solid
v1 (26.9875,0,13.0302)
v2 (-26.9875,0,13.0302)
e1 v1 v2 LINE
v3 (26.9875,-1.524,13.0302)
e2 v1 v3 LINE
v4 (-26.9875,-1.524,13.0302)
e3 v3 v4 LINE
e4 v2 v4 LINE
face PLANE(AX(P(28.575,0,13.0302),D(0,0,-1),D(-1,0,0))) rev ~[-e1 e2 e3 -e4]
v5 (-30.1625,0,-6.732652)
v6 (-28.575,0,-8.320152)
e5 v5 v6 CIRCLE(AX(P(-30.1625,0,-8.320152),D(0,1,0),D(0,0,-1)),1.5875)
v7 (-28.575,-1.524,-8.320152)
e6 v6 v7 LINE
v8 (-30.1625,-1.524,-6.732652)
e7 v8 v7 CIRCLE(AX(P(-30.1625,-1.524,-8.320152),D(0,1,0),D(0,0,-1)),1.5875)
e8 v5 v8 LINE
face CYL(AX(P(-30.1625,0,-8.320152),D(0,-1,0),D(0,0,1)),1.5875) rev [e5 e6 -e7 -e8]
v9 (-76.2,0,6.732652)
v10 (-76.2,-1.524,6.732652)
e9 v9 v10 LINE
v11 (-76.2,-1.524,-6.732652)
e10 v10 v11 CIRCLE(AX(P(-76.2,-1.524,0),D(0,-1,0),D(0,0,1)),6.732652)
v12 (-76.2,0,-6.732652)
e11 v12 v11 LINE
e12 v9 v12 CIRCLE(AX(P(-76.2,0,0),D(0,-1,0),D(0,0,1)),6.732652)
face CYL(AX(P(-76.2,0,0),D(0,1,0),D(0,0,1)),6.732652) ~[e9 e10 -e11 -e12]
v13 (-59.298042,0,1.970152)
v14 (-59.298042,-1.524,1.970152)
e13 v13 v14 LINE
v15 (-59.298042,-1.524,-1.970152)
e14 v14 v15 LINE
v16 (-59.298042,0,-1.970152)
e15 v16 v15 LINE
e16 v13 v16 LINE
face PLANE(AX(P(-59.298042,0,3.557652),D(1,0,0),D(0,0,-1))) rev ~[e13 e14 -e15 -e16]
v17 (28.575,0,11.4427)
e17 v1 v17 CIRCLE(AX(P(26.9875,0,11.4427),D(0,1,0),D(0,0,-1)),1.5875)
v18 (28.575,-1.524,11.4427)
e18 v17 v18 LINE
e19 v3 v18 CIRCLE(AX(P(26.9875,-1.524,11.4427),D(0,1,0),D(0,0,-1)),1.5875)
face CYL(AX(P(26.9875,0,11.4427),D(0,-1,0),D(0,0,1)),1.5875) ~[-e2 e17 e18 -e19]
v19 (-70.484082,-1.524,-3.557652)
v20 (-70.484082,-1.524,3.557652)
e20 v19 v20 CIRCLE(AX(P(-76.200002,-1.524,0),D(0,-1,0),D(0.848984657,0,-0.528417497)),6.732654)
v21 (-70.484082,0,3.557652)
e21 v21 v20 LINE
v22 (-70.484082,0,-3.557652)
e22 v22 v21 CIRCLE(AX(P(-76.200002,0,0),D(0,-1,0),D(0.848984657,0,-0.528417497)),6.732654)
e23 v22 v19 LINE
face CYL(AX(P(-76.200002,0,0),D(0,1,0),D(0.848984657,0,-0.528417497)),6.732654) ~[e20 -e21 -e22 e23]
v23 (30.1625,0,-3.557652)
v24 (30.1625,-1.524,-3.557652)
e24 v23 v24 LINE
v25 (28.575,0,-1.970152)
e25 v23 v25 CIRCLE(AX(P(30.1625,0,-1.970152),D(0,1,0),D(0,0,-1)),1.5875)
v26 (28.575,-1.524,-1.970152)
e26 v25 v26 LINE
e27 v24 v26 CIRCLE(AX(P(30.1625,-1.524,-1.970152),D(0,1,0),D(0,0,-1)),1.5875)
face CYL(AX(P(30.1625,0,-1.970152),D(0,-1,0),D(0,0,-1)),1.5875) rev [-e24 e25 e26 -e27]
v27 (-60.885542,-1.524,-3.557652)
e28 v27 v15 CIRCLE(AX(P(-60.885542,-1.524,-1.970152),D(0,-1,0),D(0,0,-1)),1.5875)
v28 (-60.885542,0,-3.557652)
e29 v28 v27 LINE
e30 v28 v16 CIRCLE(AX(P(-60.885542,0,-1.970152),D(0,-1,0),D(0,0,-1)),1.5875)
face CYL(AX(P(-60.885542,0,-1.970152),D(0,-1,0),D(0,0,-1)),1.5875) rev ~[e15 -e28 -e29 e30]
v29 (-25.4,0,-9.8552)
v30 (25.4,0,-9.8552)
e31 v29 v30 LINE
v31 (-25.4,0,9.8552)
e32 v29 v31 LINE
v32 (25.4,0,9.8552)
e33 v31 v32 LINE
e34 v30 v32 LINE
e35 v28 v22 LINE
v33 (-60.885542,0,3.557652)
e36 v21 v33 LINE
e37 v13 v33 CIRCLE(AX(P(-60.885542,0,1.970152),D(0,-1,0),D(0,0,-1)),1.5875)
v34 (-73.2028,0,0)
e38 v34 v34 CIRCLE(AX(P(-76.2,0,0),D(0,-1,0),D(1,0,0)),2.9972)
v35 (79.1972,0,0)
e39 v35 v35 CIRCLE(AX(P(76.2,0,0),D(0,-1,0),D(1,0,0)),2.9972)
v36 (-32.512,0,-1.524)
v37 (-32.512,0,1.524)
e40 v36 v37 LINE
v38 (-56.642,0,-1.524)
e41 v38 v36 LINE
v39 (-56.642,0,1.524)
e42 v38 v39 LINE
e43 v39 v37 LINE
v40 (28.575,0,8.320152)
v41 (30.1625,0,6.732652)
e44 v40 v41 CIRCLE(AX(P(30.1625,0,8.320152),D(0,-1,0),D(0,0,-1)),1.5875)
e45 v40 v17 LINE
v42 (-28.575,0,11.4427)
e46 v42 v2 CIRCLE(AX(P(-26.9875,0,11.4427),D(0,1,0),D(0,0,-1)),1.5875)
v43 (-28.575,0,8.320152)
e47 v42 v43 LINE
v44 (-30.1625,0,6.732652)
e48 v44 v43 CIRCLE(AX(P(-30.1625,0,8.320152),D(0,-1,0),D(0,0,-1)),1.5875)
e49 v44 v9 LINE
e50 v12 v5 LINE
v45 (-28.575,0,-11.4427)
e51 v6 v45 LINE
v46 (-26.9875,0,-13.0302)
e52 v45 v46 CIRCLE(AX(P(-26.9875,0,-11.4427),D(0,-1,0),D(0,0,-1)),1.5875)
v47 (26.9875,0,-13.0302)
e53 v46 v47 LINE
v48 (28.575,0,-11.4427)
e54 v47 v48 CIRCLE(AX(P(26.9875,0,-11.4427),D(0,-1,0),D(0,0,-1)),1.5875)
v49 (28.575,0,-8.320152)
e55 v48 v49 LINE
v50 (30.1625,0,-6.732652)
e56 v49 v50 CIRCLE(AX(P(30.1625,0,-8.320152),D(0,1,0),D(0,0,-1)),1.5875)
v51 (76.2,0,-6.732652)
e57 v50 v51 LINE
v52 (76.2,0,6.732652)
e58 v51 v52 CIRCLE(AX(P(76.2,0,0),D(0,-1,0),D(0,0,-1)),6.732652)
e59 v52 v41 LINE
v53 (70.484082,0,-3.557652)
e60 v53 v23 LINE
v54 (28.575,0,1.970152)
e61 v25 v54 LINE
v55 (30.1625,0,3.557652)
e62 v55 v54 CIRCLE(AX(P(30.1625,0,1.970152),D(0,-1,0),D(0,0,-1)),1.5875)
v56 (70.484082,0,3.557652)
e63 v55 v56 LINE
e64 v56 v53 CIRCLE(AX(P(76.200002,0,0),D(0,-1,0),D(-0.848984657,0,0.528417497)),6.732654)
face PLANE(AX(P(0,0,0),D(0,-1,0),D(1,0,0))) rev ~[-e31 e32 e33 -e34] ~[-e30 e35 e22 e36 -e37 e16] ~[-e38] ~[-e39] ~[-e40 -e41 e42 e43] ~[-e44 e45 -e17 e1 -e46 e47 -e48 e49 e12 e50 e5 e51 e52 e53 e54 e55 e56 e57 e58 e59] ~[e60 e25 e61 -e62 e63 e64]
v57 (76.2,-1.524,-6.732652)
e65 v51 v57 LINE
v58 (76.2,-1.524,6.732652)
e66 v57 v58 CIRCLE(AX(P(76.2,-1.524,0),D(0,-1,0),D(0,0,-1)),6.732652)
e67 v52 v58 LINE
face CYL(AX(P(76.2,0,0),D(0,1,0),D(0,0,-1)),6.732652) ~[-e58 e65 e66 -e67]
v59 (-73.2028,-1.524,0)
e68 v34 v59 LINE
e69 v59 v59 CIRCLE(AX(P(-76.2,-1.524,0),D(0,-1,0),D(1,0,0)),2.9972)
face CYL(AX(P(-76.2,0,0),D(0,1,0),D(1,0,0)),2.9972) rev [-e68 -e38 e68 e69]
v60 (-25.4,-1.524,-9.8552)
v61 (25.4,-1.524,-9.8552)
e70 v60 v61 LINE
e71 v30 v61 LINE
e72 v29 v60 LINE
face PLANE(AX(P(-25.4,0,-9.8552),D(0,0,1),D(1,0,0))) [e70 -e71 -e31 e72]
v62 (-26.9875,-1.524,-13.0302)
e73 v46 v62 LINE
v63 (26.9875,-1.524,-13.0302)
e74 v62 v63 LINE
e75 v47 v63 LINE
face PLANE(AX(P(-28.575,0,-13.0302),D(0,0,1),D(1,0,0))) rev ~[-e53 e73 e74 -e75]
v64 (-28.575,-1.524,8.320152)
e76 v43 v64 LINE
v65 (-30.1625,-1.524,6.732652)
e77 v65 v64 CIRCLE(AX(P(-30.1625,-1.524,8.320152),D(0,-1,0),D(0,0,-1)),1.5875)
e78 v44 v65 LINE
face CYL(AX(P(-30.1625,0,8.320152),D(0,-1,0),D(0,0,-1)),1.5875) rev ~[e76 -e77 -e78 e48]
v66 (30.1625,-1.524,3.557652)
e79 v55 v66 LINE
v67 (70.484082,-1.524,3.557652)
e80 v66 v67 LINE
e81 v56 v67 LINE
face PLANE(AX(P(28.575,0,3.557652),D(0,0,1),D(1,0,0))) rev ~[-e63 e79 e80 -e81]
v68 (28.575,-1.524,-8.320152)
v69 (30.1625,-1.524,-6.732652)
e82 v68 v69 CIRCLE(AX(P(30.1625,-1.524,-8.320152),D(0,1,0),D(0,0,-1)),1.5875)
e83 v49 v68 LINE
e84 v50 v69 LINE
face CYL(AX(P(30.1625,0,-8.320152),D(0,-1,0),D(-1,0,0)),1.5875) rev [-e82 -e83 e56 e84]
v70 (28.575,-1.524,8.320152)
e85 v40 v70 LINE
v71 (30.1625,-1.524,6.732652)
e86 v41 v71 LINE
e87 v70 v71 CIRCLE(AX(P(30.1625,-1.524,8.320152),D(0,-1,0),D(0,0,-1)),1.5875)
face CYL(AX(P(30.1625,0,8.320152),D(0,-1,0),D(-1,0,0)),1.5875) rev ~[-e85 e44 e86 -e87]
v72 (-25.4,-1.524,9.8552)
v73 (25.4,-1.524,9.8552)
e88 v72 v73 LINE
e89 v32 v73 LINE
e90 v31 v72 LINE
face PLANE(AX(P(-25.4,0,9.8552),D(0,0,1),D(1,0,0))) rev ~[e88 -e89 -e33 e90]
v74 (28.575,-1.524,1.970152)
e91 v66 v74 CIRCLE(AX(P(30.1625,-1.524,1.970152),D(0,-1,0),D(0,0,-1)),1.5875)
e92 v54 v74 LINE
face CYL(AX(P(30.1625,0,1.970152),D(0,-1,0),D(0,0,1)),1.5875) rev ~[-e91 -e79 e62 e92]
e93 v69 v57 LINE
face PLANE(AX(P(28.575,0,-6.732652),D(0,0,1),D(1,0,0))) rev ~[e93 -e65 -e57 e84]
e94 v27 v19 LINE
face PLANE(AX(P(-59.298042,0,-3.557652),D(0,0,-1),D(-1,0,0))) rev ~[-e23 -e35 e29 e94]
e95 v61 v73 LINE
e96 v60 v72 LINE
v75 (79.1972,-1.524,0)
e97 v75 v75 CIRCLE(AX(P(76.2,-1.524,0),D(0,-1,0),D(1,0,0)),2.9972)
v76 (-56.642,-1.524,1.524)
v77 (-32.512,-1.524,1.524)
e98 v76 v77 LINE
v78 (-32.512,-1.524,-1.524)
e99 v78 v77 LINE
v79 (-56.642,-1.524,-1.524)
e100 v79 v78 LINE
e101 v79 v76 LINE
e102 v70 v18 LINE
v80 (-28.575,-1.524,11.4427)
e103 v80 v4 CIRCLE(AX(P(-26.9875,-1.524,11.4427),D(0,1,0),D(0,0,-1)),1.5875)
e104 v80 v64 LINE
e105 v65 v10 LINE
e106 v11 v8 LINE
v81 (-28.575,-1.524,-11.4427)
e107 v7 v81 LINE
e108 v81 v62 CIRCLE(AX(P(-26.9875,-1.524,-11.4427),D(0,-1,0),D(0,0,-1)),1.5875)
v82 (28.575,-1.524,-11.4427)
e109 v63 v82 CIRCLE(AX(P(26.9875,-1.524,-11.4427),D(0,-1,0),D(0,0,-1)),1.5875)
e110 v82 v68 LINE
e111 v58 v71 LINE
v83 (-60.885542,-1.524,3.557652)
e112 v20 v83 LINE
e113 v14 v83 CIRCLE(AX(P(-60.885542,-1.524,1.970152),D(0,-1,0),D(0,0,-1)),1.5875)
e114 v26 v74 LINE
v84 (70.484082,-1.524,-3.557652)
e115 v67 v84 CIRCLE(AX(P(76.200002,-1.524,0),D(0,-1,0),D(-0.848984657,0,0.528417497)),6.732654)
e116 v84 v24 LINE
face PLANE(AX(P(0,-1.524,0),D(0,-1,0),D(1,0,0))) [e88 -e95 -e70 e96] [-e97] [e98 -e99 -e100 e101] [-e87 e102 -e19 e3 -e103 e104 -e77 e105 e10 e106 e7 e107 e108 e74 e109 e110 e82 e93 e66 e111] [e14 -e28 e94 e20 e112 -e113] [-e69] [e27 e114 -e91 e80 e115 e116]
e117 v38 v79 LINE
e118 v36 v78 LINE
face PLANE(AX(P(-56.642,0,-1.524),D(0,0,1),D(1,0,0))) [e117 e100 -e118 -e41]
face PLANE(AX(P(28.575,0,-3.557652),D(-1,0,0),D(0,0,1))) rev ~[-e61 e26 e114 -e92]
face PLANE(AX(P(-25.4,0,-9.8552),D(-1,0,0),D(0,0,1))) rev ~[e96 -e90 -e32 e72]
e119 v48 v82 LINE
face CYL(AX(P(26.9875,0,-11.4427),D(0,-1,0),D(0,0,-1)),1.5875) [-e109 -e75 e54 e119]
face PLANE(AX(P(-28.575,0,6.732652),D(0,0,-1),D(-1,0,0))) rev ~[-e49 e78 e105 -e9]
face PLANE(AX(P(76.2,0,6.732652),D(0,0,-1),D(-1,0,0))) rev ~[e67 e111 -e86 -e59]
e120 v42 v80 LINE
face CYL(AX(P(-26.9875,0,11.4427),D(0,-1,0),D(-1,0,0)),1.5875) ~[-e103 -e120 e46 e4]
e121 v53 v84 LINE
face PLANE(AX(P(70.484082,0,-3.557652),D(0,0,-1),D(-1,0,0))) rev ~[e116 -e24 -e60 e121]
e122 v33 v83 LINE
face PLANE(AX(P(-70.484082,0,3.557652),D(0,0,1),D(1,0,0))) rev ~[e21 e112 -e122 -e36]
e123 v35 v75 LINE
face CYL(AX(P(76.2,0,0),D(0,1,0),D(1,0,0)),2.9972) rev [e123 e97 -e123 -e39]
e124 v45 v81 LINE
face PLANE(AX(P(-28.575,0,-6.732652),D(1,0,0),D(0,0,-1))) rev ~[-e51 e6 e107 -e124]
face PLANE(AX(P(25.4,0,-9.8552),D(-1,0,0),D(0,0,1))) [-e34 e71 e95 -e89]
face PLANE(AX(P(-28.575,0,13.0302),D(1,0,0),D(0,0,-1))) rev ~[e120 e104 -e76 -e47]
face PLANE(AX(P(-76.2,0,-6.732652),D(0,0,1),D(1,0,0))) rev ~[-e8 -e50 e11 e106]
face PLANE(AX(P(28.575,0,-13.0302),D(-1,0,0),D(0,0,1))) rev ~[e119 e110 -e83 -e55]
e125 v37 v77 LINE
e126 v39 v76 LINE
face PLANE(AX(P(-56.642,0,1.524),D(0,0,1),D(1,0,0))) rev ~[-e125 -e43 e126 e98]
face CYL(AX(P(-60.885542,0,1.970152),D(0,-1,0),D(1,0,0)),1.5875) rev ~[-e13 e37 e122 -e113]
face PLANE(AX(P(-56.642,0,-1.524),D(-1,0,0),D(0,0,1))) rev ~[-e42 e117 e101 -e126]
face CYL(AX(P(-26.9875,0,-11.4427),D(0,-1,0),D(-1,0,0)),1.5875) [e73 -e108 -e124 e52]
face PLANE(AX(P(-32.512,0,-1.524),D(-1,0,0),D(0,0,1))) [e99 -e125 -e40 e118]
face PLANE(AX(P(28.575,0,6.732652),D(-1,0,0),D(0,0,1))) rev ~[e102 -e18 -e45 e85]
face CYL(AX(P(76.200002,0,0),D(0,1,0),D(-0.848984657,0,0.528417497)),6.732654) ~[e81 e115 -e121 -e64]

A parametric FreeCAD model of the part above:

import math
import FreeCAD as App
import Part
import Sketcher

V = App.Vector
Q = App.Units.Quantity


def edges_at(feature, points):
    """Names of the edges that pass closest to the given points."""
    edges = feature.Shape.Edges
    near = lambda p: min(range(len(edges)), key=lambda i: edges[i].distToShape(Part.Vertex(*p))[0])
    return sorted({f"Edge{near(p) + 1}" for p in points})

doc = App.newDocument("Part")
body = doc.addObject("PartDesign::Body", "Body")

sketch1 = body.newObject("Sketcher::SketchObject", "Sketch")
sketch1.AttachmentSupport = (doc.getObject("XZ_Plane"), [""])
sketch1.MapMode = "FlatFace"
sketch1.addGeometry([
    Part.ArcOfCircle(Part.Circle(V(-76.2, 0, 0), V(0, 0, 1), 6.7), math.radians(90), math.radians(270)),
    Part.LineSegment(V(-76.2, -6.7, 0), V(-28.6, -6.7, 0)),
    Part.LineSegment(V(-28.6, -6.7, 0), V(-28.6, -13, 0)),
    Part.LineSegment(V(-28.6, -13, 0), V(28.6, -13, 0)),
    Part.LineSegment(V(28.6, -13, 0), V(28.6, -6.7, 0)),
    Part.LineSegment(V(28.6, -6.7, 0), V(76.2, -6.7, 0)),
    Part.ArcOfCircle(Part.Circle(V(76.2, 0, 0), V(0, 0, 1), 6.7), math.radians(-90), math.radians(90)),
    Part.LineSegment(V(76.2, 6.7, 0), V(28.6, 6.7, 0)),
    Part.LineSegment(V(28.6, 6.7, 0), V(28.6, 13, 0)),
    Part.LineSegment(V(28.6, 13, 0), V(-28.6, 13, 0)),
    Part.LineSegment(V(-28.6, 13, 0), V(-28.6, 6.7, 0)),
    Part.LineSegment(V(-28.6, 6.7, 0), V(-76.2, 6.7, 0)),
    Part.LineSegment(V(70.5, -3.6, 0), V(28.6, -3.6, 0)),
    Part.LineSegment(V(28.6, -3.6, 0), V(28.6, 3.6, 0)),
    Part.LineSegment(V(28.6, 3.6, 0), V(70.5, 3.6, 0)),
    Part.ArcOfCircle(Part.Circle(V(76.2, 0, 0), V(0, 0, 1), 6.7), math.radians(148), math.radians(212)),
    Part.Circle(V(-76.2, 0, 0), V(0, 0, 1), 3),
    Part.LineSegment(V(-59.3, -3.6, 0), V(-70.5, -3.6, 0)),
    Part.ArcOfCircle(Part.Circle(V(-76.2, 0, 0), V(0, 0, 1), 6.7), math.radians(-32), math.radians(32)),
    Part.LineSegment(V(-70.5, 3.6, 0), V(-59.3, 3.6, 0)),
    Part.LineSegment(V(-59.3, 3.6, 0), V(-59.3, -3.6, 0)),
    Part.LineSegment(V(-32.5, -1.5, 0), V(-56.6, -1.5, 0)),
    Part.LineSegment(V(-56.6, -1.5, 0), V(-56.6, 1.5, 0)),
    Part.LineSegment(V(-56.6, 1.5, 0), V(-32.5, 1.5, 0)),
    Part.LineSegment(V(-32.5, 1.5, 0), V(-32.5, -1.5, 0)),
    Part.LineSegment(V(25.4, -9.9, 0), V(-25.4, -9.9, 0)),
    Part.LineSegment(V(-25.4, -9.9, 0), V(-25.4, 9.9, 0)),
    Part.LineSegment(V(-25.4, 9.9, 0), V(25.4, 9.9, 0)),
    Part.LineSegment(V(25.4, 9.9, 0), V(25.4, -9.9, 0)),
    Part.Circle(V(76.2, 0, 0), V(0, 0, 1), 3),
], False)
sketch1.addConstraint([
    Sketcher.Constraint("Tangent", 0, 2, 1, 1),
    Sketcher.Constraint("Coincident", 1, 2, 2, 1),
    Sketcher.Constraint("Coincident", 2, 2, 3, 1),
    Sketcher.Constraint("Coincident", 3, 2, 4, 1),
    Sketcher.Constraint("Coincident", 4, 2, 5, 1),
    Sketcher.Constraint("Tangent", 5, 2, 6, 1),
    Sketcher.Constraint("Tangent", 6, 2, 7, 1),
    Sketcher.Constraint("Coincident", 7, 2, 8, 1),
    Sketcher.Constraint("Coincident", 8, 2, 9, 1),
    Sketcher.Constraint("Coincident", 9, 2, 10, 1),
    Sketcher.Constraint("Coincident", 10, 2, 11, 1),
    Sketcher.Constraint("Tangent", 11, 2, 0, 1),
    Sketcher.Constraint("Coincident", 12, 2, 13, 1),
    Sketcher.Constraint("Coincident", 13, 2, 14, 1),
    Sketcher.Constraint("Coincident", 14, 2, 15, 1),
    Sketcher.Constraint("Coincident", 15, 2, 12, 1),
    Sketcher.Constraint("Coincident", 17, 2, 18, 1),
    Sketcher.Constraint("Coincident", 18, 2, 19, 1),
    Sketcher.Constraint("Coincident", 19, 2, 20, 1),
    Sketcher.Constraint("Coincident", 20, 2, 17, 1),
    Sketcher.Constraint("Coincident", 21, 2, 22, 1),
    Sketcher.Constraint("Coincident", 22, 2, 23, 1),
    Sketcher.Constraint("Coincident", 23, 2, 24, 1),
    Sketcher.Constraint("Coincident", 24, 2, 21, 1),
    Sketcher.Constraint("Coincident", 25, 2, 26, 1),
    Sketcher.Constraint("Coincident", 26, 2, 27, 1),
    Sketcher.Constraint("Coincident", 27, 2, 28, 1),
    Sketcher.Constraint("Coincident", 28, 2, 25, 1),
    Sketcher.Constraint("Horizontal", 1),
    Sketcher.Constraint("Vertical", 2),
    Sketcher.Constraint("Horizontal", 3),
    Sketcher.Constraint("Vertical", 4),
    Sketcher.Constraint("Horizontal", 5),
    Sketcher.Constraint("Horizontal", 7),
    Sketcher.Constraint("Vertical", 8),
    Sketcher.Constraint("Horizontal", 9),
    Sketcher.Constraint("Vertical", 10),
    Sketcher.Constraint("Horizontal", 11),
    Sketcher.Constraint("Horizontal", 12),
    Sketcher.Constraint("Vertical", 13),
    Sketcher.Constraint("Horizontal", 14),
    Sketcher.Constraint("Horizontal", 17),
    Sketcher.Constraint("Horizontal", 19),
    Sketcher.Constraint("Vertical", 20),
    Sketcher.Constraint("Horizontal", 21),
    Sketcher.Constraint("Vertical", 22),
    Sketcher.Constraint("Horizontal", 23),
    Sketcher.Constraint("Vertical", 24),
    Sketcher.Constraint("Horizontal", 25),
    Sketcher.Constraint("Vertical", 26),
    Sketcher.Constraint("Horizontal", 27),
    Sketcher.Constraint("Vertical", 28),
    Sketcher.Constraint("Coincident", 15, 3, 6, 3),
    Sketcher.Constraint("Coincident", 16, 3, 0, 3),
    Sketcher.Constraint("Coincident", 18, 3, 0, 3),
    Sketcher.Constraint("Coincident", 29, 3, 6, 3),
    Sketcher.Constraint("Equal", 0, 6),
    Sketcher.Constraint("Equal", 6, 15),
    Sketcher.Constraint("Equal", 15, 18),
    Sketcher.Constraint("Equal", 16, 29),
    Sketcher.Constraint("Symmetric", 0, 3, 6, 3, -1, 1),
    Sketcher.Constraint("Symmetric", 2, 2, 8, 2, -1, 1),
    Sketcher.Constraint("Symmetric", 25, 2, 27, 2, -1, 1),
    Sketcher.Constraint("Symmetric", 1, 2, 4, 2, -2),
    Sketcher.Constraint("Horizontal", 15, 2, 17, 2),
    Sketcher.Constraint("Horizontal", 14, 2, 18, 2),
    Sketcher.Constraint("Vertical", 2, 2, 9, 2),
    Sketcher.Constraint("Vertical", 8, 2, 12, 2),
    Sketcher.Constraint("Vertical", 14, 2, 15, 2),
    Sketcher.Constraint("DistanceX", 25, 2, 25, 1, Q("2 in")),
    Sketcher.Constraint("Diameter", 16, Q("0.236 in")),
    Sketcher.Constraint("DistanceX", 0, 3, -1, 1, Q("3 in")),
    Sketcher.Constraint("DistanceX", 3, 1, 3, 2, Q("2.25 in")),
    Sketcher.Constraint("DistanceX", 21, 2, 21, 1, Q("0.95 in")),
    Sketcher.Constraint("DistanceY", 22, 1, 22, 2, Q("0.12 in")),
    Sketcher.Constraint("DistanceY", 26, 1, 26, 2, Q("0.776 in")),
    Sketcher.Constraint("DistanceX", 21, 2, -1, 1, Q("2.23 in")),
    Sketcher.Constraint("DistanceY", 21, 2, -1, 1, Q("0.06 in")),
    Sketcher.Constraint("DistanceY", 2, 2, -1, 1, Q("0.513 in")),
    Sketcher.Constraint("DistanceY", 4, 2, 12, 2, Q("0.125 in")),
    Sketcher.Constraint("Radius", 0, Q("6.732652 mm")),
    Sketcher.Constraint("DistanceX", 17, 2, 17, 1, Q("11.18604 mm")),
])
pad1 = body.newObject("PartDesign::Pad", "Pad")
pad1.Profile = sketch1
pad1.Length = Q("0.06 in")
doc.recompute()

fillet = body.newObject("PartDesign::Fillet", "Fillet")
fillet.Base = (pad1, edges_at(pad1, [
    (-28.575, -0.762, 13.03),
    (28.575, -0.762, 13.03),
    (28.575, -0.762, -13.03),
    (-28.575, -0.762, -13.03),
    (-28.575, -0.762, -6.733),
    (-28.575, -0.762, 6.733),
    (28.575, -0.762, 6.733),
    (28.575, -0.762, 3.558),
    (28.575, -0.762, -6.733),
    (28.575, -0.762, -3.558),
    (-59.298, -0.762, 3.558),
    (-59.298, -0.762, -3.558),
]))
fillet.Radius = Q("0.0625 in")

doc.recompute()
